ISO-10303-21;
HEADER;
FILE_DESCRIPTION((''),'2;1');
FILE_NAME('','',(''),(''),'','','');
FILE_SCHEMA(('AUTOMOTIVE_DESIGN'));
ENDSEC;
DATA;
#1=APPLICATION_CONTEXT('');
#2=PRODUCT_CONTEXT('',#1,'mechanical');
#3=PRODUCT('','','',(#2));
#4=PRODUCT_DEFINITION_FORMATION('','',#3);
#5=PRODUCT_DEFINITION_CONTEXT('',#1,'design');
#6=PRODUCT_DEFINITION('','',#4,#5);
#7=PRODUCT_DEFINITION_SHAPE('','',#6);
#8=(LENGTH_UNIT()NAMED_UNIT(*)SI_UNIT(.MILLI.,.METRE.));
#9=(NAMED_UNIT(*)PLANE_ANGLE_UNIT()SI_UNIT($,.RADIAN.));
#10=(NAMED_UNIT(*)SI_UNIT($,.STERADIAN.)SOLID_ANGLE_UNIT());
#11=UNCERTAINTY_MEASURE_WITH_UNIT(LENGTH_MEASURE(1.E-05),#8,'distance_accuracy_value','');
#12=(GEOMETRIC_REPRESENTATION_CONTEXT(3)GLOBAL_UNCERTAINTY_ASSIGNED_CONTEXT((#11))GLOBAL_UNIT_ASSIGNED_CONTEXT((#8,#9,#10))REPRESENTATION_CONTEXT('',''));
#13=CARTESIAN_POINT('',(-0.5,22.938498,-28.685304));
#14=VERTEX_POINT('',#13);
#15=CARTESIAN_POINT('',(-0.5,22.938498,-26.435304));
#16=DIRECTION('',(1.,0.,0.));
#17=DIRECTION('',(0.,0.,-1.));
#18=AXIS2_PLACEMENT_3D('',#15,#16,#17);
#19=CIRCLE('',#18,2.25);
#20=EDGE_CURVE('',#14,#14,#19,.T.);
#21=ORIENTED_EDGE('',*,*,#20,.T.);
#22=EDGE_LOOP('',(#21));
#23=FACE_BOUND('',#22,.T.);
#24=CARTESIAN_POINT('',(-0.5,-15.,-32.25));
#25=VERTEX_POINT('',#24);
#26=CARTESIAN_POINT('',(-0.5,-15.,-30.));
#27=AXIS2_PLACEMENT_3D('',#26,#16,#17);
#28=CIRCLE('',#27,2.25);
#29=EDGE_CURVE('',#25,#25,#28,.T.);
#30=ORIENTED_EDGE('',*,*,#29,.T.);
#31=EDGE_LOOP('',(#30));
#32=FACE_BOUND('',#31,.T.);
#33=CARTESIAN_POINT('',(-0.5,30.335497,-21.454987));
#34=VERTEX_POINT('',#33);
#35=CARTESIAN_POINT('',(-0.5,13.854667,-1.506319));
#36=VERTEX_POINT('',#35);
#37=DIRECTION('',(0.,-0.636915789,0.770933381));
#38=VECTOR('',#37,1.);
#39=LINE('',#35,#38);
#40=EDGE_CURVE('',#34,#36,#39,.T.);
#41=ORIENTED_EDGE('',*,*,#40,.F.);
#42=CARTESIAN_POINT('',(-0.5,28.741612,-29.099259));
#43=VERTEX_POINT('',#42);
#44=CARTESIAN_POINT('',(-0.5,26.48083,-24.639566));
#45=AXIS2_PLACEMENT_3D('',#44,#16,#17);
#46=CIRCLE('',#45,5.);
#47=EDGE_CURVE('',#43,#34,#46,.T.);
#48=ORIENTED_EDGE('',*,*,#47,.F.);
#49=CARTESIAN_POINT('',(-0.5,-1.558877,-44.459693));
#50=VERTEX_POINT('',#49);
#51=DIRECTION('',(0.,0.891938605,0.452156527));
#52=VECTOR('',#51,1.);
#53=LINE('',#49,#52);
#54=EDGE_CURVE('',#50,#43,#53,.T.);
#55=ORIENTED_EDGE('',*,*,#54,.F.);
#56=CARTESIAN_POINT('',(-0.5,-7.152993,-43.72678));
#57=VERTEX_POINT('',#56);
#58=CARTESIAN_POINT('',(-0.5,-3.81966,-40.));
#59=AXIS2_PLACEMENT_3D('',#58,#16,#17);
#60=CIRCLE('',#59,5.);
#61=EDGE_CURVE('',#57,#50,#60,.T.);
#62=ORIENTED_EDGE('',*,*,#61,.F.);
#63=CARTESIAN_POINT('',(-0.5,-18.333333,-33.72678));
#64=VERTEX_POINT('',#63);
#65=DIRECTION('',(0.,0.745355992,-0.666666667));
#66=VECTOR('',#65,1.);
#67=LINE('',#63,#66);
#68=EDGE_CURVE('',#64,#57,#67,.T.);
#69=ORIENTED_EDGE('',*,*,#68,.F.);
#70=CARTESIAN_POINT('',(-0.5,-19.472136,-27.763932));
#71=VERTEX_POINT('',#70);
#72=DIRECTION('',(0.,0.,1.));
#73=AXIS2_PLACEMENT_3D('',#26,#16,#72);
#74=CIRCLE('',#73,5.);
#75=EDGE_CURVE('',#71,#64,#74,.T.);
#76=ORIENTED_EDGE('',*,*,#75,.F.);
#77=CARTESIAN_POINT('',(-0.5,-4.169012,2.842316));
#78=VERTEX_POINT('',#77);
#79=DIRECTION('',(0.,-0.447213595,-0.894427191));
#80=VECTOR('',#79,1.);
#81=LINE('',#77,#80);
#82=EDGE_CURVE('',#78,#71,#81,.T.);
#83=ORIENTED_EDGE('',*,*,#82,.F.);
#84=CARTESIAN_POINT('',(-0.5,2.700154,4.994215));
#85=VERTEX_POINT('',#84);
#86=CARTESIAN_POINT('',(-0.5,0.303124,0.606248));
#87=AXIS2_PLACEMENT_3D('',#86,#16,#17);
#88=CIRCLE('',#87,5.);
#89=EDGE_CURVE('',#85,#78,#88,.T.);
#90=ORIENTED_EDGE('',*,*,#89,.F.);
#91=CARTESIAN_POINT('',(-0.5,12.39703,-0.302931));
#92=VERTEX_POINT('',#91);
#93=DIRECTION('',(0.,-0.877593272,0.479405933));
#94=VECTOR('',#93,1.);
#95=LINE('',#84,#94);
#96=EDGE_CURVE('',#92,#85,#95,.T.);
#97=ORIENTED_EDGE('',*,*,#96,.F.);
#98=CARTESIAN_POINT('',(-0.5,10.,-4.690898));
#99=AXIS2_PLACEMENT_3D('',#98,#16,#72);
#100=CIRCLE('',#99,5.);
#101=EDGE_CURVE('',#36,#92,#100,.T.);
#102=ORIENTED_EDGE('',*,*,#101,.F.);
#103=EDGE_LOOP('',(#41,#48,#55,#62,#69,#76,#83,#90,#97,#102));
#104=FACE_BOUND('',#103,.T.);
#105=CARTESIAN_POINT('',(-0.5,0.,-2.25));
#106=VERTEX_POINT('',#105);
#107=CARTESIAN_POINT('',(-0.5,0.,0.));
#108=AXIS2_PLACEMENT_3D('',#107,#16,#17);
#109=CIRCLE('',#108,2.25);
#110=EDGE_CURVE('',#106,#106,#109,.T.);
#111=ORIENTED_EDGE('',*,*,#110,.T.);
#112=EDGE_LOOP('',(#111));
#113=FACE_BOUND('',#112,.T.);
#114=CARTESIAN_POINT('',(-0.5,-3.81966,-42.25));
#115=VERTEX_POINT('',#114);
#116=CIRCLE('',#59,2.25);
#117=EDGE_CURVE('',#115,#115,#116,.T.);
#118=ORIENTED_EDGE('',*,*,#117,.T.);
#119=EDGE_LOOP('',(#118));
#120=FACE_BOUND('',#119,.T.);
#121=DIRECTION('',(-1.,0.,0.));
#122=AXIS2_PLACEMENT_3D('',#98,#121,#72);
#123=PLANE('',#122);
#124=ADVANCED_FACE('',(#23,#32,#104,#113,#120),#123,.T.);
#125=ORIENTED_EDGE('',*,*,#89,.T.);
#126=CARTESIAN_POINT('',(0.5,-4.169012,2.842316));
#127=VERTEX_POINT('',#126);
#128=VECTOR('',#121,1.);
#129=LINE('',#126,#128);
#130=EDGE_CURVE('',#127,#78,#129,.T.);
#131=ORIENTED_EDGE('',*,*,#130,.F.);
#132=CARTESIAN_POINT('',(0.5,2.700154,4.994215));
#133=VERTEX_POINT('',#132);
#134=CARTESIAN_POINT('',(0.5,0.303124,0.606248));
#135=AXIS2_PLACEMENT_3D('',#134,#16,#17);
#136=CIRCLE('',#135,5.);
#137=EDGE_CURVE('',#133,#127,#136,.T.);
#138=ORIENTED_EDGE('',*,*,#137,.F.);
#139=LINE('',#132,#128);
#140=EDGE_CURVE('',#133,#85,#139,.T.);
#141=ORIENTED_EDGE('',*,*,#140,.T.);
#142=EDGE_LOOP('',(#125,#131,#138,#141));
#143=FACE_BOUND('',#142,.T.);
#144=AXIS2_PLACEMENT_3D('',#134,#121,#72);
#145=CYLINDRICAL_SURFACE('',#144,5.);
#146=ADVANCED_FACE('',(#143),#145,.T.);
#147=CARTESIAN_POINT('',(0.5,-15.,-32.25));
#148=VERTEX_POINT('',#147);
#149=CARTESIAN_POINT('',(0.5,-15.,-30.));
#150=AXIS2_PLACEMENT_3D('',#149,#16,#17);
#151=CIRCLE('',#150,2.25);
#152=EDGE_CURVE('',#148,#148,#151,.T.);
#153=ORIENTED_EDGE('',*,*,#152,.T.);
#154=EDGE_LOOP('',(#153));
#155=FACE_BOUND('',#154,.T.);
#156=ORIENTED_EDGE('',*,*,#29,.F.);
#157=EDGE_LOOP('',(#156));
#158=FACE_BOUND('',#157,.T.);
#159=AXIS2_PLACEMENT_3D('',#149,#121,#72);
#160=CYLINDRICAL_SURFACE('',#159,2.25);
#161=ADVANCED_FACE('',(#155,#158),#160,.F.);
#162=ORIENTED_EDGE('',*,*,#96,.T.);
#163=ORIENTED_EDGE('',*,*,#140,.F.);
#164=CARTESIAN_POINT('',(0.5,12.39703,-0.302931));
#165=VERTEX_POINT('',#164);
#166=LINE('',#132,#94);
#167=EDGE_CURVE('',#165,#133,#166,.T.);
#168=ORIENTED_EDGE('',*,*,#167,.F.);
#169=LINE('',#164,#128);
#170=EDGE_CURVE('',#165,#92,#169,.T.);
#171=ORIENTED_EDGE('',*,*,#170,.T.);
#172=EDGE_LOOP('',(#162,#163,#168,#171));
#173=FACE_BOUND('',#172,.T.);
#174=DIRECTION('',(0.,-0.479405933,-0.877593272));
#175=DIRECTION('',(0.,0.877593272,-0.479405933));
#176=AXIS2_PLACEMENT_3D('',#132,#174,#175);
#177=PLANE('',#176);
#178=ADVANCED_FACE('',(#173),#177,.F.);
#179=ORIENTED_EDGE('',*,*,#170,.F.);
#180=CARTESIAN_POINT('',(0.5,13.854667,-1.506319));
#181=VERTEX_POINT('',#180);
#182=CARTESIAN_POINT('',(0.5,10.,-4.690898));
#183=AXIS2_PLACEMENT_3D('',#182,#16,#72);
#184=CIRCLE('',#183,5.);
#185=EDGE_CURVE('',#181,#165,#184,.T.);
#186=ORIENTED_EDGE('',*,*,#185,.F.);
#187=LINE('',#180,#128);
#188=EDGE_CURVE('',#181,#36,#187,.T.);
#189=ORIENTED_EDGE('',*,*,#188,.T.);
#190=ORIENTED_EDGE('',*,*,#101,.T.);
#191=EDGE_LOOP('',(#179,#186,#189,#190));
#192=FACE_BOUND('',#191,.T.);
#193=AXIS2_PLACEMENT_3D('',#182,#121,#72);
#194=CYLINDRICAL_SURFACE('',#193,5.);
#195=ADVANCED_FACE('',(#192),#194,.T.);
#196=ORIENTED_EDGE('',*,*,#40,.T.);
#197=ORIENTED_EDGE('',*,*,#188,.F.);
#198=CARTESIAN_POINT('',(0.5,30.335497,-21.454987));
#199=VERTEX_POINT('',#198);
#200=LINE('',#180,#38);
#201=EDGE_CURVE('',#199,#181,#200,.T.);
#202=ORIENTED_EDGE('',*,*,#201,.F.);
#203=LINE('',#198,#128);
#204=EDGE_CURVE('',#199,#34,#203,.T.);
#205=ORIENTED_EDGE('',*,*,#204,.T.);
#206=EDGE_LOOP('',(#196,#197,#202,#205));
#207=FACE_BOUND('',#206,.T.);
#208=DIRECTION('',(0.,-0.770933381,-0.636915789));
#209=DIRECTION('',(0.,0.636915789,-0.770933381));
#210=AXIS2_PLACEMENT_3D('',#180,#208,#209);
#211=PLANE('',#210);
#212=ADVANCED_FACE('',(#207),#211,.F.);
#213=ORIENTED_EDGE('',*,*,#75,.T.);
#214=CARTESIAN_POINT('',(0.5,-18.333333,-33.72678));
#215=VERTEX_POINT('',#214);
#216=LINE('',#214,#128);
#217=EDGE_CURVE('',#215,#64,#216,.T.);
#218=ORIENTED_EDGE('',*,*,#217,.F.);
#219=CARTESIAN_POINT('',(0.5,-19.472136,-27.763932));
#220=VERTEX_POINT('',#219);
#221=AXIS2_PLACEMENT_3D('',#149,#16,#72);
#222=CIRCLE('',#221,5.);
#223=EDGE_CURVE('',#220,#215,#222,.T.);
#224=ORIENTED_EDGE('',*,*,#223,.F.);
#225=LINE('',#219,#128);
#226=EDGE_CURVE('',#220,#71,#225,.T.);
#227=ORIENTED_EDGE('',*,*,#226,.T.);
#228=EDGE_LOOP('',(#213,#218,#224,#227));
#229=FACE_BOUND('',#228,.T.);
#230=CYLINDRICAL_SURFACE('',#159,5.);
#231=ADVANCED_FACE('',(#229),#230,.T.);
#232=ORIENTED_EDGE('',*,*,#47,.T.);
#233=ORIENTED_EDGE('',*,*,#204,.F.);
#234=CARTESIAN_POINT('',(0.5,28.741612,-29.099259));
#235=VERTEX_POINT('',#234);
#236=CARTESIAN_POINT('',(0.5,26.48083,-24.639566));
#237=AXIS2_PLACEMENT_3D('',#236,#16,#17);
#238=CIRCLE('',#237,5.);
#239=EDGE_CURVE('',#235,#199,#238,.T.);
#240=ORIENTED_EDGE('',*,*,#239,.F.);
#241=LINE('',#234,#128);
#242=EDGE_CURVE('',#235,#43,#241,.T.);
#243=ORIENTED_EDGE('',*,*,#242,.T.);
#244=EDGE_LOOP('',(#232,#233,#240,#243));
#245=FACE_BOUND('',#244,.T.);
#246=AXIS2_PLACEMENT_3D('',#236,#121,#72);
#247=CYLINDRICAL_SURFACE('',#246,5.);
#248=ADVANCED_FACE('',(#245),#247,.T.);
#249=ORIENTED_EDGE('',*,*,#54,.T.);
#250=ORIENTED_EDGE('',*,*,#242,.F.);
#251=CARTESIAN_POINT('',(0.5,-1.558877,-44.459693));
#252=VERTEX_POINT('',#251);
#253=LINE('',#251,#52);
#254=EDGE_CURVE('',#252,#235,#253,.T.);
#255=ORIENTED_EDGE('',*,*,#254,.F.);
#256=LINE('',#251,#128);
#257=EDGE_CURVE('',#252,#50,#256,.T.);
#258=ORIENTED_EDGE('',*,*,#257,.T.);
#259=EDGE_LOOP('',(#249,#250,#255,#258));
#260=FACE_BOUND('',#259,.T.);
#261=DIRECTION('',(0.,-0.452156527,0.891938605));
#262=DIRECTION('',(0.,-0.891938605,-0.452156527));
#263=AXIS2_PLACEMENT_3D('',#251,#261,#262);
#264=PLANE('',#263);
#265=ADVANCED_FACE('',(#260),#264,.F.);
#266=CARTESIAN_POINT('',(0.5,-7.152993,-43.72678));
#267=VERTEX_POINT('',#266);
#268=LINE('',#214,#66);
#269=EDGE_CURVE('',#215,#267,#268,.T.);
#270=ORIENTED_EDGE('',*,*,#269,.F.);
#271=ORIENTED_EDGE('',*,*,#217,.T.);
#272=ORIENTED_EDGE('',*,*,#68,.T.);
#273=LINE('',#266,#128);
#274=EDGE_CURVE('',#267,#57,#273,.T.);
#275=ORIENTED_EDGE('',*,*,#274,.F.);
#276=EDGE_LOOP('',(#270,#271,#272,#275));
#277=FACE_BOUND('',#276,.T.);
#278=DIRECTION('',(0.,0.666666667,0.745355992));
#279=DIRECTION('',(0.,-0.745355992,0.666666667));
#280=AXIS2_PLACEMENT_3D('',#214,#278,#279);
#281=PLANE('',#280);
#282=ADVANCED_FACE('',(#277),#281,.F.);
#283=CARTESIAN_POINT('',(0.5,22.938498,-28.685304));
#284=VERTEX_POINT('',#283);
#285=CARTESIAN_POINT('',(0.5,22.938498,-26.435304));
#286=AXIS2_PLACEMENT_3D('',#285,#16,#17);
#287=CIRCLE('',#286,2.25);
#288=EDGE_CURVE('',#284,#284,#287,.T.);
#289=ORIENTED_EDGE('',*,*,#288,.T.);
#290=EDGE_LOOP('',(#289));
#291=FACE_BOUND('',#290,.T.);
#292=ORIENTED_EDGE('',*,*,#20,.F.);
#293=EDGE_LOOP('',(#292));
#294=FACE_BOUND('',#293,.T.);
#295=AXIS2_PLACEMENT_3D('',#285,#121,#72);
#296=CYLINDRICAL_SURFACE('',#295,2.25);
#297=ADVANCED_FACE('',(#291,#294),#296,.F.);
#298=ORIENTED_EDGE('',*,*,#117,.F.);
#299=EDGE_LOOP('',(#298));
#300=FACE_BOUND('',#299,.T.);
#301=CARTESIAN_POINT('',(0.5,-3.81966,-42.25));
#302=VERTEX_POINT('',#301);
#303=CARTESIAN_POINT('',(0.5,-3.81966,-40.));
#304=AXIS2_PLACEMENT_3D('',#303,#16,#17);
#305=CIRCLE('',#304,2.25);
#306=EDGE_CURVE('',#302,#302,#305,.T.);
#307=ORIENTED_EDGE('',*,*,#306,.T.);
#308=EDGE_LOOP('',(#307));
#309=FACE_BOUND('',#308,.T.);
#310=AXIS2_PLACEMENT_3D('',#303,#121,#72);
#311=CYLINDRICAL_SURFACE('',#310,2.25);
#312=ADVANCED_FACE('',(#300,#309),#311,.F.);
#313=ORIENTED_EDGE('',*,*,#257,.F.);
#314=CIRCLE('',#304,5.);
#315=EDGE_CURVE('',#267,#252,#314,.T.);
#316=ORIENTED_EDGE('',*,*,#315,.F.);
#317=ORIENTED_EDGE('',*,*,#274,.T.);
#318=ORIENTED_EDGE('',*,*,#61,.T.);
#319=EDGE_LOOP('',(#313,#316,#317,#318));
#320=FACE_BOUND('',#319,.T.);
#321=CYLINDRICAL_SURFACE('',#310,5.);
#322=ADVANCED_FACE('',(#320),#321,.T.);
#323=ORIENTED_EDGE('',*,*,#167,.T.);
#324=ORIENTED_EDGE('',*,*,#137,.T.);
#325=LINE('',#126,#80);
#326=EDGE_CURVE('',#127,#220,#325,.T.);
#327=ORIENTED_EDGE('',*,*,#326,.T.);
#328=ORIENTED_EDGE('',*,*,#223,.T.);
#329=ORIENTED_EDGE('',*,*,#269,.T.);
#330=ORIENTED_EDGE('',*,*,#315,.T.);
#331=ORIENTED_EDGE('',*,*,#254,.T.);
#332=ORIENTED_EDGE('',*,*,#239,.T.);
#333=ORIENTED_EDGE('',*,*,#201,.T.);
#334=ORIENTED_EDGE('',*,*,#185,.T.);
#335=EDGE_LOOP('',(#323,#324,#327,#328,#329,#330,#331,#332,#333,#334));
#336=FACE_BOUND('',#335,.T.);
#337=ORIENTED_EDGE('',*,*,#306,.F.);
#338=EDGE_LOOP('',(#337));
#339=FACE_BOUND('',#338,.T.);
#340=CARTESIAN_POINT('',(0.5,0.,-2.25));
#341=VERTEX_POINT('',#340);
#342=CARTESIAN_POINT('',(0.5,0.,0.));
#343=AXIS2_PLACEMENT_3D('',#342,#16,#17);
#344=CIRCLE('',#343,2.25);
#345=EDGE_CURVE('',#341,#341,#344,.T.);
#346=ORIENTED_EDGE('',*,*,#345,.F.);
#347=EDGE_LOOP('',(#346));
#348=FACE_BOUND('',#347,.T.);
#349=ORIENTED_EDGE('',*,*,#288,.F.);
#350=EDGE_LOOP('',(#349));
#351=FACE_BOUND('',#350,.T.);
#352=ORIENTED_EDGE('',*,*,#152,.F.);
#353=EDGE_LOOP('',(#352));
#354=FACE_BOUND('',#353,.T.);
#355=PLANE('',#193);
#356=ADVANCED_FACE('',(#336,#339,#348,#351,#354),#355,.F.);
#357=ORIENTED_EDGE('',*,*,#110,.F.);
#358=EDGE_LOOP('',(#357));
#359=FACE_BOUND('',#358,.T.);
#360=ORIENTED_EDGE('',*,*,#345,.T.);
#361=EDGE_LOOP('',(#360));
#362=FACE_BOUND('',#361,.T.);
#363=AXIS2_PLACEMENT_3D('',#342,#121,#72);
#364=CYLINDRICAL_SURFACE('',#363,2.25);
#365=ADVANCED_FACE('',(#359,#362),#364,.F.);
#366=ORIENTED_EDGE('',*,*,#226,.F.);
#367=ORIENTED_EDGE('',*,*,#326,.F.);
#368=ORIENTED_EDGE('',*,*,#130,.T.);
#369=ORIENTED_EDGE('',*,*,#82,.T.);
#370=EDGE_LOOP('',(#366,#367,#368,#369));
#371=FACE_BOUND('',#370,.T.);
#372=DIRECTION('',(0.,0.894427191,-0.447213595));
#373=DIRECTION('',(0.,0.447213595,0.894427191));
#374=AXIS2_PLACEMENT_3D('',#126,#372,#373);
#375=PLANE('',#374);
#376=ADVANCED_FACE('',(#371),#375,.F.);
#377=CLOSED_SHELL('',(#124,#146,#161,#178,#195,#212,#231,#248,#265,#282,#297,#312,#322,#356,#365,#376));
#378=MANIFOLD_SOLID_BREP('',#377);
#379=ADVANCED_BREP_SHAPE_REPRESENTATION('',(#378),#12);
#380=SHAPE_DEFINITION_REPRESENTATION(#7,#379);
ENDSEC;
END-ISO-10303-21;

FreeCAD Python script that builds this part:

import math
import FreeCAD as App
import Part
import Sketcher

V = App.Vector
Q = App.Units.Quantity

doc = App.newDocument("Part")
params = doc.addObject("Spreadsheet::Sheet", "Params")
for row, (alias, value) in enumerate([
    ("sketch1_radius", "5 mm"),
    ("sketch1_diameter", "4.5 mm"),
    ("sketch1_length", "15 mm"),
    ("pad1_length", "1 mm"),
], start=1):
    params.set(f"A{row}", alias)
    params.set(f"B{row}", "=" + value)
    params.setAlias(f"B{row}", alias)

body = doc.addObject("PartDesign::Body", "Body")

sketch1 = body.newObject("Sketcher::SketchObject", "Sketch")
sketch1.AttachmentSupport = (doc.getObject("YZ_Plane"), [""])
sketch1.MapMode = "FlatFace"
sketch1.addGeometry([
    Part.LineSegment(V(-4.2, 2.8, 0), V(-19.5, -27.8, 0)),
    Part.ArcOfCircle(Part.Circle(V(-15, -30, 0), V(0, 0, 1), 5), math.radians(153), math.radians(228)),
    Part.LineSegment(V(-18.3, -33.7, 0), V(-7.2, -43.7, 0)),
    Part.ArcOfCircle(Part.Circle(V(-3.8, -40, 0), V(0, 0, 1), 5), math.radians(-132), math.radians(-63)),
    Part.LineSegment(V(-1.6, -44.5, 0), V(28.7, -29.1, 0)),
    Part.ArcOfCircle(Part.Circle(V(26.5, -24.6, 0), V(0, 0, 1), 5), math.radians(-63), math.radians(40)),
    Part.LineSegment(V(30.3, -21.5, 0), V(13.9, -1.5, 0)),
    Part.ArcOfCircle(Part.Circle(V(10, -4.7, 0), V(0, 0, 1), 5), math.radians(40), math.radians(61)),
    Part.LineSegment(V(12.4, -0.3, 0), V(2.7, 5, 0)),
    Part.ArcOfCircle(Part.Circle(V(0.3, 0.6, 0), V(0, 0, 1), 5), math.radians(61), math.radians(153)),
    Part.Circle(V(0, 0, 0), V(0, 0, 1), 2.2),
    Part.Circle(V(-15, -30, 0), V(0, 0, 1), 2.2),
    Part.Circle(V(-3.8, -40, 0), V(0, 0, 1), 2.2),
    Part.Circle(V(22.9, -26.4, 0), V(0, 0, 1), 2.2),
], False)
sketch1.addConstraint([
    Sketcher.Constraint("Tangent", 0, 2, 1, 1),
    Sketcher.Constraint("Tangent", 1, 2, 2, 1),
    Sketcher.Constraint("Tangent", 2, 2, 3, 1),
    Sketcher.Constraint("Tangent", 3, 2, 4, 1),
    Sketcher.Constraint("Tangent", 4, 2, 5, 1),
    Sketcher.Constraint("Tangent", 5, 2, 6, 1),
    Sketcher.Constraint("Tangent", 6, 2, 7, 1),
    Sketcher.Constraint("Tangent", 7, 2, 8, 1),
    Sketcher.Constraint("Tangent", 8, 2, 9, 1),
    Sketcher.Constraint("Tangent", 9, 2, 0, 1),
    Sketcher.Constraint("Coincident", 10, 3, -1, 1),
    Sketcher.Constraint("Coincident", 11, 3, 1, 3),
    Sketcher.Constraint("Coincident", 12, 3, 3, 3),
    Sketcher.Constraint("Equal", 1, 3),
    Sketcher.Constraint("Equal", 3, 5),
    Sketcher.Constraint("Equal", 5, 7),
    Sketcher.Constraint("Equal", 7, 9),
    Sketcher.Constraint("Equal", 10, 11),
    Sketcher.Constraint("Equal", 11, 12),
    Sketcher.Constraint("Equal", 12, 13),
    Sketcher.Constraint("Radius", 1, Q("5 mm")),
    Sketcher.Constraint("Diameter", 10, Q("4.5 mm")),
    Sketcher.Constraint("Distance", 2, Q("15 mm")),
    Sketcher.Constraint("DistanceX", 1, 3, -1, 1, Q("15 mm")),
    Sketcher.Constraint("DistanceY", 1, 3, -1, 1, Q("30 mm")),
    Sketcher.Constraint("DistanceY", 3, 3, -1, 1, Q("40 mm")),
    Sketcher.Constraint("DistanceX", -1, 1, 7, 3, Q("10 mm")),
    Sketcher.Constraint("DistanceX", 13, 3, 5, 2, Q("7.396999 mm")),
    Sketcher.Constraint("DistanceX", -1, 1, 13, 3, Q("22.938498 mm")),
    Sketcher.Constraint("DistanceY", 9, 2, 8, 2, Q("2.151898 mm")),
    Sketcher.Constraint("DistanceX", -1, 1, 5, 3, Q("26.48083 mm")),
    Sketcher.Constraint("DistanceY", -1, 1, 9, 3, Q("0.606248 mm")),
    Sketcher.Constraint("DistanceY", 4, 2, -1, 1, Q("29.099259 mm")),
    Sketcher.Constraint("DistanceY", 13, 3, 5, 3, Q("1.795738 mm")),
])
sketch1.setExpression("Constraints[20]", "Params.sketch1_radius")
sketch1.setExpression("Constraints[21]", "Params.sketch1_diameter")
sketch1.setExpression("Constraints[22]", "Params.sketch1_length")
pad1 = body.newObject("PartDesign::Pad", "Pad")
pad1.Profile = sketch1
pad1.setExpression("Length", "Params.pad1_length")
pad1.Midplane = True

doc.recompute()
